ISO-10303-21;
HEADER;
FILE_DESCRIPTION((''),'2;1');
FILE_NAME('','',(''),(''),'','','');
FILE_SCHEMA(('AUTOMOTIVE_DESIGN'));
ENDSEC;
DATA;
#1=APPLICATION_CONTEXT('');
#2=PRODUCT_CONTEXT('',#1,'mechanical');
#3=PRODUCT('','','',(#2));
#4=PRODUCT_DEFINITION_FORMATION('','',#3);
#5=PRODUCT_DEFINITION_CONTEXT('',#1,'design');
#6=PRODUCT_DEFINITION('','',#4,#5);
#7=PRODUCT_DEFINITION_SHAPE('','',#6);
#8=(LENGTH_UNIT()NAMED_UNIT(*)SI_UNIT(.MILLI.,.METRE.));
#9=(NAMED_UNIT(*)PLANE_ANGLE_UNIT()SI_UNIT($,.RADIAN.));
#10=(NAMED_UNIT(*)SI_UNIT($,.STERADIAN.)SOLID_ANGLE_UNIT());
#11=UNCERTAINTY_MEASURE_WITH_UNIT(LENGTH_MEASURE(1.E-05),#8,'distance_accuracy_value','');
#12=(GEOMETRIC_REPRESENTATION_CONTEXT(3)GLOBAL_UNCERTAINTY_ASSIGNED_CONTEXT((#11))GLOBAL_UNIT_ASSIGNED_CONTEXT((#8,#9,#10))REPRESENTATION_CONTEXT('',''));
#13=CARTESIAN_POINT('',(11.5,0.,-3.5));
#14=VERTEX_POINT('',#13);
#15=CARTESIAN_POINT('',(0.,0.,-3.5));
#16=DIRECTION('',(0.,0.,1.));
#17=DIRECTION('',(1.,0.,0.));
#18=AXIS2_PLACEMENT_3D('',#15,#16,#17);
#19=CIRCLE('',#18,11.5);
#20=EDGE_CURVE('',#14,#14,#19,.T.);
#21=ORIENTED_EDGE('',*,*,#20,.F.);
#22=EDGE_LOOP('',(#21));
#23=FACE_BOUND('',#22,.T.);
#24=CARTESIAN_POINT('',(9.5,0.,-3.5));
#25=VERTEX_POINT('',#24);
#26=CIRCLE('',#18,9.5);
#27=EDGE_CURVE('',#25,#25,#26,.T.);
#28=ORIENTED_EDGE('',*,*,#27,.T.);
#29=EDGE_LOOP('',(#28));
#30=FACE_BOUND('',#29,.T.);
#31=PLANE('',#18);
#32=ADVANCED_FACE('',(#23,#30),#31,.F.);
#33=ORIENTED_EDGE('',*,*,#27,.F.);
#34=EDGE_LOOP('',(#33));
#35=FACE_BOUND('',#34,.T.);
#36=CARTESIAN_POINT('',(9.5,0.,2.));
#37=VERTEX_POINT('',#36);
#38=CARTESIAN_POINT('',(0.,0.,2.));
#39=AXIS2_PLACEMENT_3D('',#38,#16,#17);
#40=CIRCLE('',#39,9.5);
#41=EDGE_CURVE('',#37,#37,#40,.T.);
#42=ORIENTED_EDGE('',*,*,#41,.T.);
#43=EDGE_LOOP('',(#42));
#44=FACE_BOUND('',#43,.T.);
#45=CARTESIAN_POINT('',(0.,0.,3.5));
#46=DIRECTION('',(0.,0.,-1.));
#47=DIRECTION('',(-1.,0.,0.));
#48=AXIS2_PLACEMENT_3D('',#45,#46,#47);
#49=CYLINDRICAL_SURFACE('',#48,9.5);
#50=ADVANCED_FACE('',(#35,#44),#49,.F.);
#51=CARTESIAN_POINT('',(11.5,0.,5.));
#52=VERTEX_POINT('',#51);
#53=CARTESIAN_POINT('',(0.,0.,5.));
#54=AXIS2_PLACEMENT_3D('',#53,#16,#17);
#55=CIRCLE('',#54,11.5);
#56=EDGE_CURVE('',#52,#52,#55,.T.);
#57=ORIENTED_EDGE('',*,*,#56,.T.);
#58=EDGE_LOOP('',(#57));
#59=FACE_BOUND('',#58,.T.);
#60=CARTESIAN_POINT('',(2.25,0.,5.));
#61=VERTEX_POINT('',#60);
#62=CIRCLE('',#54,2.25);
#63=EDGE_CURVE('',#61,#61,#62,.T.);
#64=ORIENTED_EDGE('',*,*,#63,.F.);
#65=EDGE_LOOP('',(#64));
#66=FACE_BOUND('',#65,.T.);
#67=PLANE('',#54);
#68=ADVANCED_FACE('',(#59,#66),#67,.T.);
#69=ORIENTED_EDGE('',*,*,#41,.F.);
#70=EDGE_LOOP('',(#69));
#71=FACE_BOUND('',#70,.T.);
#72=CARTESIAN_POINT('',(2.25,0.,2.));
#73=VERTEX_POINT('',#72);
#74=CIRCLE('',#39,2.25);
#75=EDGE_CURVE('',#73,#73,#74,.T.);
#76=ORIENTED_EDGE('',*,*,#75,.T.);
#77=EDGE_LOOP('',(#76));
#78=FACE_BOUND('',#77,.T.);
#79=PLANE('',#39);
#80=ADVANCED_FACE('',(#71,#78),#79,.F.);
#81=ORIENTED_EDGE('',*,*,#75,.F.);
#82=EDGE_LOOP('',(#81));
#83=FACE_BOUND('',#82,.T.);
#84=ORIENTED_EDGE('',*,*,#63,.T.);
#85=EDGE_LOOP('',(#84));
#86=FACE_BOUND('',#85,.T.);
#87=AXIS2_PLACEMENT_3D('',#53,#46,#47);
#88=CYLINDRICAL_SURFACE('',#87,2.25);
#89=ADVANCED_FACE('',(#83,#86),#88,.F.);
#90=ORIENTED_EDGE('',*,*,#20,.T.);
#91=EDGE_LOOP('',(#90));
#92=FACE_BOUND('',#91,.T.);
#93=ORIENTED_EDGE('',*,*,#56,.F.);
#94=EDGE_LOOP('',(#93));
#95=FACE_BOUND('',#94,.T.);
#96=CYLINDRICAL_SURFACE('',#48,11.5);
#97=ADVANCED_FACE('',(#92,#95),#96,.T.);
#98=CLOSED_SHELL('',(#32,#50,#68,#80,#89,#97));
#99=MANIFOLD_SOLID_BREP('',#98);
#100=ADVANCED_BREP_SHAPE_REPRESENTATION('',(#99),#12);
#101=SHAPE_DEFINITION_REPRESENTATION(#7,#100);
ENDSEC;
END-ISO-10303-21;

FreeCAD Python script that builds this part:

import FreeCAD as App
import Part
import Sketcher

V = App.Vector
Q = App.Units.Quantity

doc = App.newDocument("Part")
body = doc.addObject("PartDesign::Body", "Body")

# Sketch on XY plane
sketch1 = doc.addObject("Sketcher::SketchObject", "Sketch")
body.addObject(sketch1)
sketch1.AttachmentSupport = (doc.XY_Plane, [""])
sketch1.MapMode = "FlatFace"
sketch1.addGeometry(Part.Circle(V(0, 0, 0), V(0, 0, 1), 12), False)
sketch1.addGeometry(Part.Circle(V(0, 0, 0), V(0, 0, 1), 10), False)
sketch1.addConstraint(Sketcher.Constraint("Coincident", 0, 3, -1, 1))
sketch1.addConstraint(Sketcher.Constraint("Coincident", 1, 3, -1, 1))
sketch1.addConstraint(Sketcher.Constraint("Diameter", 0, Q("23 mm")))
sketch1.addConstraint(Sketcher.Constraint("Diameter", 1, Q("19 mm")))
pad1 = doc.addObject("PartDesign::Pad", "Pad")
body.addObject(pad1)
pad1.Profile = sketch1
pad1.Length = 7
pad1.Midplane = True

# Sketch on XY plane
sketch2 = doc.addObject("Sketcher::SketchObject", "Sketch001")
body.addObject(sketch2)
sketch2.AttachmentSupport = (doc.XY_Plane, [""])
sketch2.MapMode = "FlatFace"
sketch2.AttachmentOffset = App.Placement(V(0, 0, 3.5), App.Rotation())
sketch2.addGeometry(Part.Circle(V(0, 0, 0), V(0, 0, 1), 11.5), False)
sketch2.addGeometry(Part.Circle(V(0, 0, 0), V(0, 0, 1), 2.2), False)
sketch2.addConstraint(Sketcher.Constraint("Coincident", 0, 3, -1, 1))
sketch2.addConstraint(Sketcher.Constraint("Coincident", 1, 3, -1, 1))
sketch2.addConstraint(Sketcher.Constraint("Diameter", 0, Q("23 mm")))
sketch2.addConstraint(Sketcher.Constraint("Diameter", 1, Q("4.5 mm")))
pad2 = doc.addObject("PartDesign::Pad", "Pad001")
body.addObject(pad2)
pad2.Profile = sketch2
pad2.Length = 3
pad2.Midplane = True

doc.recompute()
